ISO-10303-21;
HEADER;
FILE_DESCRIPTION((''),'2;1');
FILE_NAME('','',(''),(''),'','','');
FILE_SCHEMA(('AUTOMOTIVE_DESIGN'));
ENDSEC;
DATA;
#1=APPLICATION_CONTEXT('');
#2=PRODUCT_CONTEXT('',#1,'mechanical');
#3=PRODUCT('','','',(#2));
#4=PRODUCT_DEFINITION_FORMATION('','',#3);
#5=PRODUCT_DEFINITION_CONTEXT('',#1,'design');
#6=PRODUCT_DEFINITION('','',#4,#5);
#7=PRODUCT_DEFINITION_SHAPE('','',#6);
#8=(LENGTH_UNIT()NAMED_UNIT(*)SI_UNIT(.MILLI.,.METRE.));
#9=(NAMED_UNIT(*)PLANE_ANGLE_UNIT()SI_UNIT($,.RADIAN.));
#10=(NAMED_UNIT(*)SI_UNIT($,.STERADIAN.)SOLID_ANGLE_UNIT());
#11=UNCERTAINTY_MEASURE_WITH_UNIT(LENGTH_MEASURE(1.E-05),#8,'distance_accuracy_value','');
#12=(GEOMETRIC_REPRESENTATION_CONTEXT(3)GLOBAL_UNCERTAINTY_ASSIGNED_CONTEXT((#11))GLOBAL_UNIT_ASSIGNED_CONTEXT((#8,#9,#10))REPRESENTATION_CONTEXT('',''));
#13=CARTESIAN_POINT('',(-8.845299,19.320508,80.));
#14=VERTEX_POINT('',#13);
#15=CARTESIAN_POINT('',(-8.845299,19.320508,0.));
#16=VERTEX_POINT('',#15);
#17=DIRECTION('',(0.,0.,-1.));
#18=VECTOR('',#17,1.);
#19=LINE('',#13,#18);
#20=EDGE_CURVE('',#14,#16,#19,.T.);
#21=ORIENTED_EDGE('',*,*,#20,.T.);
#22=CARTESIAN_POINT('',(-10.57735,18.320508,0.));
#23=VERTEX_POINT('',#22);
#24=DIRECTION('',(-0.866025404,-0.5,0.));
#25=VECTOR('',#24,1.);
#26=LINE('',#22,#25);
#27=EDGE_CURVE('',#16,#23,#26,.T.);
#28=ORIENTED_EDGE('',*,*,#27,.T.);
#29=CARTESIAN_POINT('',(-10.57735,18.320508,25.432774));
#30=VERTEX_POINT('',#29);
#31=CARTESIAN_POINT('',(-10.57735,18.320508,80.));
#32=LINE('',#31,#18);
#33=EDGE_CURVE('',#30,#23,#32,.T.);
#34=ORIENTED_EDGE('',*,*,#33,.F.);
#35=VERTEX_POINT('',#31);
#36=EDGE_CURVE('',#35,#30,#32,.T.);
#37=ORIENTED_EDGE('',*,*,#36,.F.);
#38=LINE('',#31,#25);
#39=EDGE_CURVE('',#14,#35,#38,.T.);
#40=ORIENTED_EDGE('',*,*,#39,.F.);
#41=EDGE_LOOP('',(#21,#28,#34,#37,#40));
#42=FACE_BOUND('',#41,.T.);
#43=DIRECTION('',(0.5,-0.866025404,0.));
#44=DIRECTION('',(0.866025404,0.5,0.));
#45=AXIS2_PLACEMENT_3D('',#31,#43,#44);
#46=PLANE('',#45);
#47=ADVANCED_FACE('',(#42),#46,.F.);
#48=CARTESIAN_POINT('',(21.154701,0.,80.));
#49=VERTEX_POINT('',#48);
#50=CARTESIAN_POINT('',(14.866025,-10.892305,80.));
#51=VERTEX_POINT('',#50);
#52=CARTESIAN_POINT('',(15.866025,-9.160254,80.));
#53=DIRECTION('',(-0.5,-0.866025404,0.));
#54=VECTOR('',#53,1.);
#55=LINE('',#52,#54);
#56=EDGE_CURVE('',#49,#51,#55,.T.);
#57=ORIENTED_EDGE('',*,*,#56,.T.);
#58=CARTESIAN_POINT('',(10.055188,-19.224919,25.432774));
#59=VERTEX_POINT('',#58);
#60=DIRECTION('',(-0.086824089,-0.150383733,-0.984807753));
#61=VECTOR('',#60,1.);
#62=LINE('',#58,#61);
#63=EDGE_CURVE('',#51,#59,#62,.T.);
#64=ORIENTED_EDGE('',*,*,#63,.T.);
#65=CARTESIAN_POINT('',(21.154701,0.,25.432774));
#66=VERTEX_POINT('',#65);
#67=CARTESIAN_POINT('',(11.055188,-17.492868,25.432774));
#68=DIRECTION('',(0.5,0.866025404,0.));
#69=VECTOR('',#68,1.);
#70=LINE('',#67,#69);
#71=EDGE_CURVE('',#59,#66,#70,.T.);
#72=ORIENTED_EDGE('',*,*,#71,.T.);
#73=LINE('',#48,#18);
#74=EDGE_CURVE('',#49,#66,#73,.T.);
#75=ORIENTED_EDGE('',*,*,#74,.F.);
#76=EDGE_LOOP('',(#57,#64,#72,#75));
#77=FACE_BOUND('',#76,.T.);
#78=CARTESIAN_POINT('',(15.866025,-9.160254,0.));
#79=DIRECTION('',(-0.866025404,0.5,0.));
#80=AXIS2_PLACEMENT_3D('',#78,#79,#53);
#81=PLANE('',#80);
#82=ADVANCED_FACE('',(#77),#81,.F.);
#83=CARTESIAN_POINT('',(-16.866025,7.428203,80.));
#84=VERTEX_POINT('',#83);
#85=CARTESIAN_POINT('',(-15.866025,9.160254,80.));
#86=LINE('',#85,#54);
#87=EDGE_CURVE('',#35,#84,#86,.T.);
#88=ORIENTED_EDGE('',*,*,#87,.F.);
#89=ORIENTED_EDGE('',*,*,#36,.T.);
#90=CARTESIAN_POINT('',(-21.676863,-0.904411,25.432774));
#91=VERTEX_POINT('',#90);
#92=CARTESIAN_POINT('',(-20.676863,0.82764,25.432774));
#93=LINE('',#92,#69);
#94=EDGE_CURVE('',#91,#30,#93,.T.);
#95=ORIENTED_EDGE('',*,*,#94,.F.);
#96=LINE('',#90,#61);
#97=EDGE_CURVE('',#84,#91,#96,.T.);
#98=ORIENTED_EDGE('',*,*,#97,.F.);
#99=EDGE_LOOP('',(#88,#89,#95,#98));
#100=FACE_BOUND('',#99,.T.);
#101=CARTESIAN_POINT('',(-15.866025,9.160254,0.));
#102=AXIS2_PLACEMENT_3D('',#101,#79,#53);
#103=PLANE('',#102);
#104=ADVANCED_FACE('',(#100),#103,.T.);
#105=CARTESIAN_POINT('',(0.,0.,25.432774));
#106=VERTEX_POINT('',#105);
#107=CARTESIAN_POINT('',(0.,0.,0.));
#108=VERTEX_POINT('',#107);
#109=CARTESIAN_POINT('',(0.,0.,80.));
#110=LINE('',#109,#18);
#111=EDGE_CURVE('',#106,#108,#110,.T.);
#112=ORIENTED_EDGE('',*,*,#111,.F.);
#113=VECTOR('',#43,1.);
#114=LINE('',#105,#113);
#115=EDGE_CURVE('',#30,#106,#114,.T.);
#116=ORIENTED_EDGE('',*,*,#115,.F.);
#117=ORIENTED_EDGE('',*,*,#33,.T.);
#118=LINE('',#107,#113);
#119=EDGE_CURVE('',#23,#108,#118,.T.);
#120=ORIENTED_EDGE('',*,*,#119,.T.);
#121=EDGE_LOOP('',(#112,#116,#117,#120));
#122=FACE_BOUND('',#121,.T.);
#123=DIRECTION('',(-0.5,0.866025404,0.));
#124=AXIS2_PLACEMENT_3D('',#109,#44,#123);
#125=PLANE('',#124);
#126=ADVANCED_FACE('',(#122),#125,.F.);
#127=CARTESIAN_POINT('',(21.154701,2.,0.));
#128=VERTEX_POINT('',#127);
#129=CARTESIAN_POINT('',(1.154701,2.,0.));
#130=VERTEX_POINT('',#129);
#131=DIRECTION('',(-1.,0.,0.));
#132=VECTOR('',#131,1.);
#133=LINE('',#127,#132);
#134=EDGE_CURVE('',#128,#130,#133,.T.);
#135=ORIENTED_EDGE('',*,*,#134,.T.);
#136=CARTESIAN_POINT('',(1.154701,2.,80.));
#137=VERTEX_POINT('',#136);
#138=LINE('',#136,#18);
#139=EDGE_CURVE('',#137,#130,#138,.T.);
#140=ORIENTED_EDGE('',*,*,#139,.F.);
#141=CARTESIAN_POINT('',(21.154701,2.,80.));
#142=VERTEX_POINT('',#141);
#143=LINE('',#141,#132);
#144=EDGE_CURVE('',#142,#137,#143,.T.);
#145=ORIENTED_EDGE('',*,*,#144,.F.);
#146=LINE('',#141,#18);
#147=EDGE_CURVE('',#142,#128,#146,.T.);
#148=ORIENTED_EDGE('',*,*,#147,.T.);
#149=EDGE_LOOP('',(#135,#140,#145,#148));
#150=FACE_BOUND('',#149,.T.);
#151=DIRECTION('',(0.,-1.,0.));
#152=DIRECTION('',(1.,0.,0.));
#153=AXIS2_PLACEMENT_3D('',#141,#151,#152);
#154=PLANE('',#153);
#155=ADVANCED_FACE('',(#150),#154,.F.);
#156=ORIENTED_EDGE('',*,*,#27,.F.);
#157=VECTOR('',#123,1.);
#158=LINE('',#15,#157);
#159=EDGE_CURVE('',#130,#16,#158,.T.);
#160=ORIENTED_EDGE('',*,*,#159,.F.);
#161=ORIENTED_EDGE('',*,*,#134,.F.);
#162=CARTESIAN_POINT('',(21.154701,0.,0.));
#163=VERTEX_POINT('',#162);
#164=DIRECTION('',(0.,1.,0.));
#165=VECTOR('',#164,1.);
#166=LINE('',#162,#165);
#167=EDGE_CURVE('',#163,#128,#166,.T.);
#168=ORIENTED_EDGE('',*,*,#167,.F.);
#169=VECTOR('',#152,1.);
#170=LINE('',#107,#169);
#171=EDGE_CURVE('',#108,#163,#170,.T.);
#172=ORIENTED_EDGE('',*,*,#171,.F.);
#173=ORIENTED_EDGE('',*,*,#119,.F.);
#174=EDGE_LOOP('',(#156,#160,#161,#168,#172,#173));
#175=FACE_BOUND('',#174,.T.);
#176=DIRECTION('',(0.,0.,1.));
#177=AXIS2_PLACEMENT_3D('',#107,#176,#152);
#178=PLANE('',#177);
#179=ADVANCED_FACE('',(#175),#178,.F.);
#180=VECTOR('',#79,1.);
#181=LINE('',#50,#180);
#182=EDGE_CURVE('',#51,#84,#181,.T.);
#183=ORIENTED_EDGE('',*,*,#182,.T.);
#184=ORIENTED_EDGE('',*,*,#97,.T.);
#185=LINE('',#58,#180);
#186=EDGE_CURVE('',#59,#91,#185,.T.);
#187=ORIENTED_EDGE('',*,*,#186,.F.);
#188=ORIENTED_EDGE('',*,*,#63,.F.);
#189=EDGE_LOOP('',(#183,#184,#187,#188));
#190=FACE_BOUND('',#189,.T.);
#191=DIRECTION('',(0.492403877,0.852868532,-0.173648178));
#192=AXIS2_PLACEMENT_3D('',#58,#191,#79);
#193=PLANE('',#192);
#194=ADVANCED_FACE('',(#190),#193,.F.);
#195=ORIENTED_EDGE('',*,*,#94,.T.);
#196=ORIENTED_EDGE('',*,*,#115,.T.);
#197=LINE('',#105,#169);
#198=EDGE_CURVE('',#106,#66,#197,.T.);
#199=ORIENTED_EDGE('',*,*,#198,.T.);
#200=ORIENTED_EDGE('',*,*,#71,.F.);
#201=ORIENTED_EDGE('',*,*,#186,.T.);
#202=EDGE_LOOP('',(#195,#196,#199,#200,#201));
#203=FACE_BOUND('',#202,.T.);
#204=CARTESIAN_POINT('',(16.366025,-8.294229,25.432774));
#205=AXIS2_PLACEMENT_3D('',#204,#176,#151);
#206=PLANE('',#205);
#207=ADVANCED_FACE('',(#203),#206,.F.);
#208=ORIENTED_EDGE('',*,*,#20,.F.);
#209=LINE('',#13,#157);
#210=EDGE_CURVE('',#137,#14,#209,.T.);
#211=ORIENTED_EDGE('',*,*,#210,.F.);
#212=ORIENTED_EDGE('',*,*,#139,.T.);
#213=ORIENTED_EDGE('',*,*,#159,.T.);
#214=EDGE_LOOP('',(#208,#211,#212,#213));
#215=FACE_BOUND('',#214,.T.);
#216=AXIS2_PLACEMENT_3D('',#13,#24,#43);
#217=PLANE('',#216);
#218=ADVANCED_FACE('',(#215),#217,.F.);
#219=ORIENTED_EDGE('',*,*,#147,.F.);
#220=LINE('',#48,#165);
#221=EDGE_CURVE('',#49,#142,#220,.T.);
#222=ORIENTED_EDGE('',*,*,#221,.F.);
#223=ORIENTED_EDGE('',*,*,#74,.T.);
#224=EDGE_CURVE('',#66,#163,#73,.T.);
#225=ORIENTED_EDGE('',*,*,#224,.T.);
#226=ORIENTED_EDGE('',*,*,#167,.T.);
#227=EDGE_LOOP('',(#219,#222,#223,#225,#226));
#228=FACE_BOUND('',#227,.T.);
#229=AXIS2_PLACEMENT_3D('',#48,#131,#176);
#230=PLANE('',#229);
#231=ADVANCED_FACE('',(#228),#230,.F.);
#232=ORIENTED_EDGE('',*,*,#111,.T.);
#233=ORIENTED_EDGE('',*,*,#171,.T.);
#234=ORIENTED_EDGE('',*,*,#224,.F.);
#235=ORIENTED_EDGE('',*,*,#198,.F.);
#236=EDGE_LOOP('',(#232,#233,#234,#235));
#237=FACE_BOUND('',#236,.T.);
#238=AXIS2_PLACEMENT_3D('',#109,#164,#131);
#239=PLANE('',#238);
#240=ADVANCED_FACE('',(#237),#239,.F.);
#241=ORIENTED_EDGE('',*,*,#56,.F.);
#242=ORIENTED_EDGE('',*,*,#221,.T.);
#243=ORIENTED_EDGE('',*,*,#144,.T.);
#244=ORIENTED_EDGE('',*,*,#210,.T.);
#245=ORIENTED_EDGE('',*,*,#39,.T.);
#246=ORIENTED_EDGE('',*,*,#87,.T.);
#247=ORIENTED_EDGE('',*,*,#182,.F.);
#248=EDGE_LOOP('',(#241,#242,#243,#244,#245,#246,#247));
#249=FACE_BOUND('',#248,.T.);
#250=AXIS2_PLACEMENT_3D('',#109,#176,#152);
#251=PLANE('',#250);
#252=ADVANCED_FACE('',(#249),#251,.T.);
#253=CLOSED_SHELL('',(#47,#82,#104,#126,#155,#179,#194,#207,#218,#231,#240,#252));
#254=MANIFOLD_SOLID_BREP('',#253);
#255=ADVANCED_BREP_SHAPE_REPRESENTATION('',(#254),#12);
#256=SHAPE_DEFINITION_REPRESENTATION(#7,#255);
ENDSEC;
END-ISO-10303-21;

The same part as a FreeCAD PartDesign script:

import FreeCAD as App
import Part
import Sketcher
from FreeCAD import Vector
Q = App.Units.Quantity

doc = App.newDocument("Part")
body = doc.addObject("PartDesign::Body", "Body")

# Sketch on XY plane
sketch1 = body.newObject("Sketcher::SketchObject", "Sketch")
sketch1.AttachmentSupport = (doc.getObject("XY_Plane"), [""])
sketch1.MapMode = "FlatFace"
sketch1.addGeometry(Part.LineSegment(Vector(-10.6, 18.3, 0), Vector(0, 0, 0)), False)
sketch1.addGeometry(Part.LineSegment(Vector(0, 0, 0), Vector(21.2, 0, 0)), False)
sketch1.addGeometry(Part.LineSegment(Vector(21.2, 0, 0), Vector(21.2, 2, 0)), False)
sketch1.addGeometry(Part.LineSegment(Vector(21.2, 2, 0), Vector(1.2, 2, 0)), False)
sketch1.addGeometry(Part.LineSegment(Vector(1.2, 2, 0), Vector(-8.8, 19.3, 0)), False)
sketch1.addGeometry(Part.LineSegment(Vector(-8.8, 19.3, 0), Vector(-10.6, 18.3, 0)), False)
sketch1.addConstraint(Sketcher.Constraint("Coincident", 0, 2, 1, 1))
sketch1.addConstraint(Sketcher.Constraint("Coincident", 1, 2, 2, 1))
sketch1.addConstraint(Sketcher.Constraint("Coincident", 2, 2, 3, 1))
sketch1.addConstraint(Sketcher.Constraint("Coincident", 3, 2, 4, 1))
sketch1.addConstraint(Sketcher.Constraint("Coincident", 4, 2, 5, 1))
sketch1.addConstraint(Sketcher.Constraint("Coincident", 5, 2, 0, 1))
sketch1.addConstraint(Sketcher.Constraint("Horizontal", 1))
sketch1.addConstraint(Sketcher.Constraint("Vertical", 2))
sketch1.addConstraint(Sketcher.Constraint("Horizontal", 3))
sketch1.addConstraint(Sketcher.Constraint("Coincident", 0, 2, -1, 1))
sketch1.addConstraint(Sketcher.Constraint("Parallel", 0, 4))
sketch1.addConstraint(Sketcher.Constraint("Perpendicular", 4, 5))
sketch1.addConstraint(Sketcher.Constraint("DistanceX", 3, 2, 3, 1, Q("20 mm")))
sketch1.addConstraint(Sketcher.Constraint("DistanceY", 2, 1, 2, 2, Q("2 mm")))
sketch1.addConstraint(Sketcher.Constraint("Angle", 0, Q("-60 deg")))
sketch1.addConstraint(Sketcher.Constraint("Distance", 4, Q("20 mm")))
sketch1.addConstraint(Sketcher.Constraint("Distance", 5, Q("2 mm")))
pad1 = body.newObject("PartDesign::Pad", "Pad")
pad1.Profile = sketch1
pad1.Length = 80

# Sketch on an angled plane
sketch2 = body.newObject("Sketcher::SketchObject", "Sketch001")
sketch2.Placement = App.Placement(Vector(0, 0, 0), App.Rotation(Vector(0, 0, -1), Vector(0.5, 0.866025404, 0), Vector(0.866025404, -0.5, 0), "ZXY"))
sketch2.addGeometry(Part.LineSegment(Vector(-25.4, -11.6, 0), Vector(-25.4, 1, 0)), False)
sketch2.addGeometry(Part.LineSegment(Vector(-25.4, 1, 0), Vector(-80, 1, 0)), False)
sketch2.addGeometry(Part.LineSegment(Vector(-80, 1, 0), Vector(-80, -2, 0)), False)
sketch2.addGeometry(Part.LineSegment(Vector(-80, -2, 0), Vector(-25.4, -11.6, 0)), False)
sketch2.addConstraint(Sketcher.Constraint("Coincident", 0, 2, 1, 1))
sketch2.addConstraint(Sketcher.Constraint("Coincident", 1, 2, 2, 1))
sketch2.addConstraint(Sketcher.Constraint("Coincident", 2, 2, 3, 1))
sketch2.addConstraint(Sketcher.Constraint("Coincident", 3, 2, 0, 1))
sketch2.addConstraint(Sketcher.Constraint("Vertical", 0))
sketch2.addConstraint(Sketcher.Constraint("Horizontal", 1))
sketch2.addConstraint(Sketcher.Constraint("Vertical", 2))
sketch2.addConstraint(Sketcher.Constraint("DistanceY", 2, 2, 2, 1, Q("3 mm")))
sketch2.addConstraint(Sketcher.Constraint("Angle", 3, Q("-10 deg")))
sketch2.addConstraint(Sketcher.Constraint("DistanceY", -1, 1, 0, 2, Q("1 mm")))
sketch2.addConstraint(Sketcher.Constraint("DistanceX", 1, 2, -1, 1, Q("80 mm")))
sketch2.addConstraint(Sketcher.Constraint("DistanceX", 1, 2, 1, 1, Q("54.567226 mm")))
pad2 = body.newObject("PartDesign::Pad", "Pad001")
pad2.Profile = sketch2
pad2.Type = "TwoLengths"
pad2.Length = 18.320508
pad2.Length2 = 18.320508

# Sketch on an angled plane
sketch3 = body.newObject("Sketcher::SketchObject", "Sketch002")
sketch3.Placement = App.Placement(Vector(0.5, 0.866025, 0), App.Rotation(Vector(0, 0, -1), Vector(-0.866025404, 0.5, 0), Vector(0.5, 0.866025404, 0), "ZXY"))
sketch3.addGeometry(Part.LineSegment(Vector(-80, 18, 0), Vector(-80, 2, 0)), False)
sketch3.addGeometry(Part.LineSegment(Vector(-80, 2, 0), Vector(-25, 2, 0)), False)
sketch3.addGeometry(Part.LineSegment(Vector(-25, 2, 0), Vector(-25, 18, 0)), False)
sketch3.addGeometry(Part.LineSegment(Vector(-25, 18, 0), Vector(-80, 18, 0)), False)
sketch3.addConstraint(Sketcher.Constraint("Coincident", 0, 2, 1, 1))
sketch3.addConstraint(Sketcher.Constraint("Coincident", 1, 2, 2, 1))
sketch3.addConstraint(Sketcher.Constraint("Coincident", 2, 2, 3, 1))
sketch3.addConstraint(Sketcher.Constraint("Coincident", 3, 2, 0, 1))
sketch3.addConstraint(Sketcher.Constraint("Vertical", 0))
sketch3.addConstraint(Sketcher.Constraint("Horizontal", 1))
sketch3.addConstraint(Sketcher.Constraint("Vertical", 2))
sketch3.addConstraint(Sketcher.Constraint("Horizontal", 3))
sketch3.addConstraint(Sketcher.Constraint("DistanceX", 0, 2, -1, 1, Q("80 mm")))
sketch3.addConstraint(Sketcher.Constraint("DistanceX", 1, 1, 1, 2, Q("54.567226 mm")))
sketch3.addConstraint(Sketcher.Constraint("DistanceY", 0, 2, 0, 1, Q("16.588457 mm")))
sketch3.addConstraint(Sketcher.Constraint("DistanceY", -1, 1, 0, 2, Q("1.732051 mm")))
pad3 = body.newObject("PartDesign::Pad", "Pad002")
pad3.Profile = sketch3
pad3.Type = "UpToFirst"

# Sketch on an angled plane
sketch4 = body.newObject("Sketcher::SketchObject", "Sketch003")
sketch4.Placement = App.Placement(Vector(0.5, 0.866025, 0), App.Rotation(Vector(0.866025404, -0.5, 0), Vector(0, 0, -1), Vector(0.5, 0.866025404, 0), "ZXY"))
sketch4.addGeometry(Part.LineSegment(Vector(2, -25, 0), Vector(2, -80, 0)), False)
sketch4.addGeometry(Part.LineSegment(Vector(2, -80, 0), Vector(18, -80, 0)), False)
sketch4.addGeometry(Part.LineSegment(Vector(18, -80, 0), Vector(18, -25, 0)), False)
sketch4.addGeometry(Part.LineSegment(Vector(18, -25, 0), Vector(2, -25, 0)), False)
sketch4.addConstraint(Sketcher.Constraint("Coincident", 0, 2, 1, 1))
sketch4.addConstraint(Sketcher.Constraint("Coincident", 1, 2, 2, 1))
sketch4.addConstraint(Sketcher.Constraint("Coincident", 2, 2, 3, 1))
sketch4.addConstraint(Sketcher.Constraint("Coincident", 3, 2, 0, 1))
sketch4.addConstraint(Sketcher.Constraint("Vertical", 0))
sketch4.addConstraint(Sketcher.Constraint("Horizontal", 1))
sketch4.addConstraint(Sketcher.Constraint("Vertical", 2))
sketch4.addConstraint(Sketcher.Constraint("Horizontal", 3))
sketch4.addConstraint(Sketcher.Constraint("DistanceY", 0, 2, -1, 1, Q("80 mm")))
sketch4.addConstraint(Sketcher.Constraint("DistanceX", 1, 1, 1, 2, Q("16.588457 mm")))
sketch4.addConstraint(Sketcher.Constraint("DistanceY", 0, 2, 0, 1, Q("54.567226 mm")))
sketch4.addConstraint(Sketcher.Constraint("DistanceX", -1, 1, 0, 2, Q("1.732051 mm")))
pad4 = body.newObject("PartDesign::Pad", "Pad003")
pad4.Profile = sketch4
pad4.Type = "UpToFirst"

doc.recompute()
